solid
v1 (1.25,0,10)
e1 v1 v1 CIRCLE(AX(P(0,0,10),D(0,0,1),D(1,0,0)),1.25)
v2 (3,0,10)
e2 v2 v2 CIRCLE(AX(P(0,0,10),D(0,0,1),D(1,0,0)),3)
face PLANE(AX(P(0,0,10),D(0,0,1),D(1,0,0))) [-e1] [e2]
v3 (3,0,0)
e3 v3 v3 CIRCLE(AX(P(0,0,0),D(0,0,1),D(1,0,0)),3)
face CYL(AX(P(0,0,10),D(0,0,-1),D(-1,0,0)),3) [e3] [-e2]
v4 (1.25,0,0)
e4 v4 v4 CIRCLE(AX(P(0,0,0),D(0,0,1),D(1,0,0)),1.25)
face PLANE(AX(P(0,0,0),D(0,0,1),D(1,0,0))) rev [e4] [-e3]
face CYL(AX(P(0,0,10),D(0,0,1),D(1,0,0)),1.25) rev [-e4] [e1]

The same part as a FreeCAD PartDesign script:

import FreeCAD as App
import Part
import Sketcher
Q = App.Units.Quantity

doc = App.newDocument("Part")
body = doc.addObject("PartDesign::Body", "Body")

# Sketch on XY plane
sketch1 = body.newObject("Sketcher::SketchObject", "Sketch")
sketch1.AttachmentSupport = (doc.getObject("XY_Plane"), [""])
sketch1.MapMode = "FlatFace"
sketch1.addGeometry(Part.Circle(App.Vector(0, 0, 0), App.Vector(0, 0, 1), 3), False)
sketch1.addConstraint(Sketcher.Constraint("Coincident", 0, 3, -1, 1))
sketch1.addConstraint(Sketcher.Constraint("Diameter", 0, Q("6 mm")))
pad1 = body.newObject("PartDesign::Pad", "Pad")
pad1.Profile = sketch1
pad1.Length = 10

# Sketch on XY plane
sketch2 = body.newObject("Sketcher::SketchObject", "Sketch001")
sketch2.AttachmentSupport = (doc.getObject("XY_Plane"), [""])
sketch2.MapMode = "FlatFace"
sketch2.AttachmentOffset = App.Placement(App.Vector(0, 0, 10), App.Rotation())
sketch2.addGeometry(Part.Circle(App.Vector(0, 0, 0), App.Vector(0, 0, 1), 1.2), False)
sketch2.addConstraint(Sketcher.Constraint("Coincident", 0, 3, -1, 1))
sketch2.addConstraint(Sketcher.Constraint("Diameter", 0, Q("2.5 mm")))
doc.recompute()
hole = body.newObject("PartDesign::Hole", "Hole")
hole.Profile = sketch2
hole.ThreadType = "None"
hole.Diameter = 2.5
hole.DepthType = "ThroughAll"

doc.recompute()
